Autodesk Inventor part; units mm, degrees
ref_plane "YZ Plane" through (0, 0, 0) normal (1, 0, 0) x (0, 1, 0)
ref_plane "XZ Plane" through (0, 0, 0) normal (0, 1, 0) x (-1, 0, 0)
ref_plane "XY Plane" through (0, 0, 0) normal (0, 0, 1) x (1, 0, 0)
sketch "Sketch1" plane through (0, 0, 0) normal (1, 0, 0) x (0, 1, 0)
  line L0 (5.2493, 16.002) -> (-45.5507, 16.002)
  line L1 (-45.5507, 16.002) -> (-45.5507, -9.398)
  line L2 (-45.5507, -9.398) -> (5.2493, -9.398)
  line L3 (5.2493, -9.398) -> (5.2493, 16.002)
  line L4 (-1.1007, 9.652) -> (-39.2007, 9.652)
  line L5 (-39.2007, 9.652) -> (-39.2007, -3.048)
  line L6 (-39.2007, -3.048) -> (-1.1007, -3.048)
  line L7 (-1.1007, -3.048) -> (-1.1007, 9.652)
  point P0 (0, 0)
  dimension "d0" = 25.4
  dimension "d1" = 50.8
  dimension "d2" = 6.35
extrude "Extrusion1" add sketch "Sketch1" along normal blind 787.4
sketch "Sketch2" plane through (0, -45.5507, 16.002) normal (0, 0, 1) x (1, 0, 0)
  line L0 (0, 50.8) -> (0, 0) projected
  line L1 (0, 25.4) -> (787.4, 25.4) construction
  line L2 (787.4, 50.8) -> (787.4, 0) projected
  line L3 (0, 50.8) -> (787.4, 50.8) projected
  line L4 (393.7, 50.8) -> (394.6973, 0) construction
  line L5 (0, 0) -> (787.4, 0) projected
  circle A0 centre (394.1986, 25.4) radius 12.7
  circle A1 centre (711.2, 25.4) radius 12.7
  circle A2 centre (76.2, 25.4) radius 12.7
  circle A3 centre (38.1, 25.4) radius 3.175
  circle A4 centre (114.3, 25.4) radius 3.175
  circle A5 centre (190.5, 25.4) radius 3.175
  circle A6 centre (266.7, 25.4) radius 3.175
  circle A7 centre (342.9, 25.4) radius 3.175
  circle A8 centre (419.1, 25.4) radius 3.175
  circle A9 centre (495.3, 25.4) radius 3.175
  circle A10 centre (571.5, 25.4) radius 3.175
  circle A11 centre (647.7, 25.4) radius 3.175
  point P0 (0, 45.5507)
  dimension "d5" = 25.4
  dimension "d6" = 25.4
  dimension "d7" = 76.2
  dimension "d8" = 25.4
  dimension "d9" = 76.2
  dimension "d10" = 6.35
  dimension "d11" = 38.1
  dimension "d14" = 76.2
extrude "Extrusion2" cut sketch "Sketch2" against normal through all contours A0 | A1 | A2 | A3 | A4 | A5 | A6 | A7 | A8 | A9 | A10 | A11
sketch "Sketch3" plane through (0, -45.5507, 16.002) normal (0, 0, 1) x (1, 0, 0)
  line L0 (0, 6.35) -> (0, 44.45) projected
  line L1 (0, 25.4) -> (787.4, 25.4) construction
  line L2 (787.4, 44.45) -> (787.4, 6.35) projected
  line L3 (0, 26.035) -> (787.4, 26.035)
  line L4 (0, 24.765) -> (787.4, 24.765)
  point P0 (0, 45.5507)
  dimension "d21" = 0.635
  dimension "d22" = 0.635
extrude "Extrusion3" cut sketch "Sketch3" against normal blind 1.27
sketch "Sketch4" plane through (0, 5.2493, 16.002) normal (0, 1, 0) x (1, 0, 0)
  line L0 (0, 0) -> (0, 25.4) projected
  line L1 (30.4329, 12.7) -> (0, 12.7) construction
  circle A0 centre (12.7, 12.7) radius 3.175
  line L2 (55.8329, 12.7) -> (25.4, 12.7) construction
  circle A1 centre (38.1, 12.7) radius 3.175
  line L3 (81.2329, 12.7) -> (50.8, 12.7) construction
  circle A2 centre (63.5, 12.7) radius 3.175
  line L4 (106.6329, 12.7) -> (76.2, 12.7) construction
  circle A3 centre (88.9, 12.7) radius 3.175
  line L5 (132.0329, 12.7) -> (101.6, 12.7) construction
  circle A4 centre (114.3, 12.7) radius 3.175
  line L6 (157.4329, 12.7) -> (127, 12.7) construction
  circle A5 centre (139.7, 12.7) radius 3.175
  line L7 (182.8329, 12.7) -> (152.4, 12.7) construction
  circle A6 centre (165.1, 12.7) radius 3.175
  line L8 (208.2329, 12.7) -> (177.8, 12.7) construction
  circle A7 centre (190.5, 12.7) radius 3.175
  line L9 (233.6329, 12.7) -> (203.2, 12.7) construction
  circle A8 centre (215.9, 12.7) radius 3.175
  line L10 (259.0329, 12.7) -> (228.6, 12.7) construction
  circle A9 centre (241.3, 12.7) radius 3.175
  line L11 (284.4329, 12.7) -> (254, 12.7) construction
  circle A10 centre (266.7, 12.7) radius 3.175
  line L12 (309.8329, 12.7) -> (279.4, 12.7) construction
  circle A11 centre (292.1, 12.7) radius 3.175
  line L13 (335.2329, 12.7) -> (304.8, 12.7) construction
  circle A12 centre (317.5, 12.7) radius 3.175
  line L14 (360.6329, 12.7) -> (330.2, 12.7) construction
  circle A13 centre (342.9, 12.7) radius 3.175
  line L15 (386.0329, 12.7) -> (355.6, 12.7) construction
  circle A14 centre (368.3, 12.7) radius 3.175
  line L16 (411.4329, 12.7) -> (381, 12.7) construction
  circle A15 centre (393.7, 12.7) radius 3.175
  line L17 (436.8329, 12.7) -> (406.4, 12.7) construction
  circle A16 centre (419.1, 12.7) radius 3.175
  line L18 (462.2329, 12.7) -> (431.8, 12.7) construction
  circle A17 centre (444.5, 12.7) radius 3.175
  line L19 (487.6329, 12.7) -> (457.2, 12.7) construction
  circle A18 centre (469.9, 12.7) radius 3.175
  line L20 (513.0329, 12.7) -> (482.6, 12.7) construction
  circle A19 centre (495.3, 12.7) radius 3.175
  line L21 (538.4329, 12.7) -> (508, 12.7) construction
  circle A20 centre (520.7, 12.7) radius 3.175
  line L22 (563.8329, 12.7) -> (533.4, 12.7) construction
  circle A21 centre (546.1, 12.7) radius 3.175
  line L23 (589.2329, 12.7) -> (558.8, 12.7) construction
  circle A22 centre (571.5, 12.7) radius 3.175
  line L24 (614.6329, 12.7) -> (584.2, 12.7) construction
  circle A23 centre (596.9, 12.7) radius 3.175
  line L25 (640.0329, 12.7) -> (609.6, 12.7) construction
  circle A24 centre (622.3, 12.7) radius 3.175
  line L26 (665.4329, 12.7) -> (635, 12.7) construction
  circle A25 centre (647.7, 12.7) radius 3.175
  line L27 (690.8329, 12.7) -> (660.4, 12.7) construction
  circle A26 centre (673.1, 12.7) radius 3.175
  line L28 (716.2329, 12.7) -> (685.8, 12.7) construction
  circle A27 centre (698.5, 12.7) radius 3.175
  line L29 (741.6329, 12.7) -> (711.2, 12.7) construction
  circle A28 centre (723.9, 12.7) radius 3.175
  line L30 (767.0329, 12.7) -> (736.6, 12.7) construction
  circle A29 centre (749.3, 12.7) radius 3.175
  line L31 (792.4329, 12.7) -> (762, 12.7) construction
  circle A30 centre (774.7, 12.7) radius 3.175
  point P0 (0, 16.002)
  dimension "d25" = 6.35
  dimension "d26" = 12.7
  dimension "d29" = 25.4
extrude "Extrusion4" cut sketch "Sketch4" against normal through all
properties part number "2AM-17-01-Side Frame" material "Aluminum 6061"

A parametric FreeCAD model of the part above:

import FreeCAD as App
import Part
import Sketcher
Q = App.Units.Quantity


def add_polygon(sketch, points):
    """Adds a closed chain of lines whose ends are joined by coincident constraints."""
    first, n = sketch.GeometryCount, len(points)
    for a, b in zip(points, points[1:] + points[:1]):
        sketch.addGeometry(Part.LineSegment(App.Vector(*a, 0), App.Vector(*b, 0)), False)
    for i in range(n):
        sketch.addConstraint(Sketcher.Constraint("Coincident", first + i, 2, first + (i + 1) % n, 1))

doc = App.newDocument("Part")
body = doc.addObject("PartDesign::Body", "Body")

sketch1 = doc.addObject("Sketcher::SketchObject", "Sketch")
body.addObject(sketch1)
sketch1.AttachmentSupport = (doc.YZ_Plane, [""])
sketch1.MapMode = "FlatFace"
add_polygon(sketch1, [(5, -9), (5, 16), (-46, 16), (-46, -9)])
add_polygon(sketch1, [(-39, 10), (-1, 10), (-1, -3), (-39, -3)])
sketch1.addConstraint(Sketcher.Constraint("Vertical", 0))
sketch1.addConstraint(Sketcher.Constraint("Horizontal", 1))
sketch1.addConstraint(Sketcher.Constraint("Vertical", 2))
sketch1.addConstraint(Sketcher.Constraint("Horizontal", 3))
sketch1.addConstraint(Sketcher.Constraint("Horizontal", 4))
sketch1.addConstraint(Sketcher.Constraint("Vertical", 5))
sketch1.addConstraint(Sketcher.Constraint("Horizontal", 6))
sketch1.addConstraint(Sketcher.Constraint("Vertical", 7))
sketch1.addConstraint(Sketcher.Constraint("DistanceX", 1, 2, 1, 1, Q("2 in")))
sketch1.addConstraint(Sketcher.Constraint("DistanceY", 0, 1, 0, 2, Q("1 in")))
sketch1.addConstraint(Sketcher.Constraint("DistanceX", 4, 2, 0, 2, Q("0.25 in")))
sketch1.addConstraint(Sketcher.Constraint("DistanceY", 4, 2, 0, 2, Q("0.25 in")))
sketch1.addConstraint(Sketcher.Constraint("DistanceY", 3, 2, 5, 2, Q("0.25 in")))
sketch1.addConstraint(Sketcher.Constraint("DistanceX", 2, 2, 6, 2, Q("0.25 in")))
sketch1.addConstraint(Sketcher.Constraint("DistanceY", -1, 1, 0, 2, Q("0.63 in")))
sketch1.addConstraint(Sketcher.Constraint("DistanceX", -1, 1, 0, 2, Q("5.2493 mm")))
pad1 = doc.addObject("PartDesign::Pad", "Pad")
body.addObject(pad1)
pad1.Profile = sketch1
pad1.Length = Q("31 in")

sketch2 = doc.addObject("Sketcher::SketchObject", "Sketch001")
body.addObject(sketch2)
sketch2.AttachmentSupport = (doc.XY_Plane, [""])
sketch2.MapMode = "FlatFace"
sketch2.AttachmentOffset = App.Placement(App.Vector(0, 0, 0.63 * 25.4), App.Rotation())
sketch2.addGeometry(Part.Circle(App.Vector(394.2, -20.2, 0), App.Vector(0, 0, 1), 12.7), False)
sketch2.addGeometry(Part.Circle(App.Vector(711.2, -20.2, 0), App.Vector(0, 0, 1), 12.7), False)
sketch2.addGeometry(Part.Circle(App.Vector(76.2, -20.2, 0), App.Vector(0, 0, 1), 12.7), False)
sketch2.addGeometry(Part.Circle(App.Vector(38.1, -20.2, 0), App.Vector(0, 0, 1), 3.2), False)
sketch2.addGeometry(Part.Circle(App.Vector(114.3, -20.2, 0), App.Vector(0, 0, 1), 3.2), False)
sketch2.addGeometry(Part.Circle(App.Vector(190.5, -20.2, 0), App.Vector(0, 0, 1), 3.2), False)
sketch2.addGeometry(Part.Circle(App.Vector(266.7, -20.2, 0), App.Vector(0, 0, 1), 3.2), False)
sketch2.addGeometry(Part.Circle(App.Vector(342.9, -20.2, 0), App.Vector(0, 0, 1), 3.2), False)
sketch2.addGeometry(Part.Circle(App.Vector(419.1, -20.2, 0), App.Vector(0, 0, 1), 3.2), False)
sketch2.addGeometry(Part.Circle(App.Vector(495.3, -20.2, 0), App.Vector(0, 0, 1), 3.2), False)
sketch2.addGeometry(Part.Circle(App.Vector(571.5, -20.2, 0), App.Vector(0, 0, 1), 3.2), False)
sketch2.addGeometry(Part.Circle(App.Vector(647.7, -20.2, 0), App.Vector(0, 0, 1), 3.2), False)
sketch2.addConstraint(Sketcher.Constraint("Equal", 0, 1))
sketch2.addConstraint(Sketcher.Constraint("Equal", 1, 2))
sketch2.addConstraint(Sketcher.Constraint("Equal", 3, 4))
sketch2.addConstraint(Sketcher.Constraint("Equal", 4, 5))
sketch2.addConstraint(Sketcher.Constraint("Equal", 5, 6))
sketch2.addConstraint(Sketcher.Constraint("Equal", 6, 7))
sketch2.addConstraint(Sketcher.Constraint("Equal", 7, 8))
sketch2.addConstraint(Sketcher.Constraint("Equal", 8, 9))
sketch2.addConstraint(Sketcher.Constraint("Equal", 9, 10))
sketch2.addConstraint(Sketcher.Constraint("Equal", 10, 11))
sketch2.addConstraint(Sketcher.Constraint("Horizontal", 0, 3, 1, 3))
sketch2.addConstraint(Sketcher.Constraint("Horizontal", 1, 3, 2, 3))
sketch2.addConstraint(Sketcher.Constraint("Horizontal", 2, 3, 3, 3))
sketch2.addConstraint(Sketcher.Constraint("Horizontal", 3, 3, 4, 3))
sketch2.addConstraint(Sketcher.Constraint("Horizontal", 4, 3, 5, 3))
sketch2.addConstraint(Sketcher.Constraint("Horizontal", 5, 3, 6, 3))
sketch2.addConstraint(Sketcher.Constraint("Horizontal", 6, 3, 7, 3))
sketch2.addConstraint(Sketcher.Constraint("Horizontal", 7, 3, 8, 3))
sketch2.addConstraint(Sketcher.Constraint("Horizontal", 8, 3, 9, 3))
sketch2.addConstraint(Sketcher.Constraint("Horizontal", 9, 3, 10, 3))
sketch2.addConstraint(Sketcher.Constraint("Horizontal", 10, 3, 11, 3))
sketch2.addConstraint(Sketcher.Constraint("Diameter", 0, Q("1 in")))
sketch2.addConstraint(Sketcher.Constraint("Diameter", 3, Q("0.25 in")))
sketch2.addConstraint(Sketcher.Constraint("DistanceX", -1, 1, 2, 3, Q("3 in")))
sketch2.addConstraint(Sketcher.Constraint("DistanceX", 3, 3, 4, 3, Q("3 in")))
sketch2.addConstraint(Sketcher.Constraint("DistanceX", 4, 3, 5, 3, Q("3 in")))
sketch2.addConstraint(Sketcher.Constraint("DistanceX", 5, 3, 6, 3, Q("3 in")))
sketch2.addConstraint(Sketcher.Constraint("DistanceX", 6, 3, 7, 3, Q("3 in")))
sketch2.addConstraint(Sketcher.Constraint("DistanceX", 7, 3, 8, 3, Q("3 in")))
sketch2.addConstraint(Sketcher.Constraint("DistanceX", 8, 3, 9, 3, Q("3 in")))
sketch2.addConstraint(Sketcher.Constraint("DistanceX", 9, 3, 10, 3, Q("3 in")))
sketch2.addConstraint(Sketcher.Constraint("DistanceX", 10, 3, 11, 3, Q("3 in")))
sketch2.addConstraint(Sketcher.Constraint("DistanceX", -1, 1, 3, 3, Q("1.5 in")))
sketch2.addConstraint(Sketcher.Constraint("DistanceX", -1, 1, 1, 3, Q("28 in")))
sketch2.addConstraint(Sketcher.Constraint("DistanceX", -1, 1, 0, 3, Q("394.1986 mm")))
sketch2.addConstraint(Sketcher.Constraint("DistanceY", 0, 3, -1, 1, Q("20.1507 mm")))
pocket1 = doc.addObject("PartDesign::Pocket", "Pocket")
body.addObject(pocket1)
pocket1.Profile = sketch2
pocket1.Type = "ThroughAll"

sketch3 = doc.addObject("Sketcher::SketchObject", "Sketch002")
body.addObject(sketch3)
sketch3.AttachmentSupport = (doc.XY_Plane, [""])
sketch3.MapMode = "FlatFace"
sketch3.AttachmentOffset = App.Placement(App.Vector(0, 0, 0.63 * 25.4), App.Rotation())
add_polygon(sketch3, [(0, -19.5), (0, -20.8), (787.4, -20.8), (787.4, -19.5)])
sketch3.addConstraint(Sketcher.Constraint("Vertical", 0))
sketch3.addConstraint(Sketcher.Constraint("Horizontal", 1))
sketch3.addConstraint(Sketcher.Constraint("Vertical", 2))
sketch3.addConstraint(Sketcher.Constraint("Horizontal", 3))
sketch3.addConstraint(Sketcher.Constraint("PointOnObject", 0, 2, -2))
sketch3.addConstraint(Sketcher.Constraint("DistanceX", 1, 1, 1, 2, Q("31 in")))
sketch3.addConstraint(Sketcher.Constraint("DistanceY", 0, 2, 0, 1, Q("0.05 in")))
sketch3.addConstraint(Sketcher.Constraint("DistanceY", 0, 2, -1, 1, Q("20.7857 mm")))
pocket2 = doc.addObject("PartDesign::Pocket", "Pocket001")
body.addObject(pocket2)
pocket2.Profile = sketch3
pocket2.Length = Q("0.05 in")

sketch4 = doc.addObject("Sketcher::SketchObject", "Sketch003")
body.addObject(sketch4)
sketch4.AttachmentSupport = (doc.XZ_Plane, [""])
sketch4.MapMode = "FlatFace"
sketch4.AttachmentOffset = App.Placement(App.Vector(0, 0, -5.2493), App.Rotation())
sketch4.addGeometry(Part.Circle(App.Vector(12.7, 3.3, 0), App.Vector(0, 0, 1), 3.2), False)
sketch4.addGeometry(Part.Circle(App.Vector(38.1, 3.3, 0), App.Vector(0, 0, 1), 3.2), False)
sketch4.addGeometry(Part.Circle(App.Vector(63.5, 3.3, 0), App.Vector(0, 0, 1), 3.2), False)
sketch4.addGeometry(Part.Circle(App.Vector(88.9, 3.3, 0), App.Vector(0, 0, 1), 3.2), False)
sketch4.addGeometry(Part.Circle(App.Vector(114.3, 3.3, 0), App.Vector(0, 0, 1), 3.2), False)
sketch4.addGeometry(Part.Circle(App.Vector(139.7, 3.3, 0), App.Vector(0, 0, 1), 3.2), False)
sketch4.addGeometry(Part.Circle(App.Vector(165.1, 3.3, 0), App.Vector(0, 0, 1), 3.2), False)
sketch4.addGeometry(Part.Circle(App.Vector(190.5, 3.3, 0), App.Vector(0, 0, 1), 3.2), False)
sketch4.addGeometry(Part.Circle(App.Vector(215.9, 3.3, 0), App.Vector(0, 0, 1), 3.2), False)
sketch4.addGeometry(Part.Circle(App.Vector(241.3, 3.3, 0), App.Vector(0, 0, 1), 3.2), False)
sketch4.addGeometry(Part.Circle(App.Vector(266.7, 3.3, 0), App.Vector(0, 0, 1), 3.2), False)
sketch4.addGeometry(Part.Circle(App.Vector(292.1, 3.3, 0), App.Vector(0, 0, 1), 3.2), False)
sketch4.addGeometry(Part.Circle(App.Vector(317.5, 3.3, 0), App.Vector(0, 0, 1), 3.2), False)
sketch4.addGeometry(Part.Circle(App.Vector(342.9, 3.3, 0), App.Vector(0, 0, 1), 3.2), False)
sketch4.addGeometry(Part.Circle(App.Vector(368.3, 3.3, 0), App.Vector(0, 0, 1), 3.2), False)
sketch4.addGeometry(Part.Circle(App.Vector(393.7, 3.3, 0), App.Vector(0, 0, 1), 3.2), False)
sketch4.addGeometry(Part.Circle(App.Vector(419.1, 3.3, 0), App.Vector(0, 0, 1), 3.2), False)
sketch4.addGeometry(Part.Circle(App.Vector(444.5, 3.3, 0), App.Vector(0, 0, 1), 3.2), False)
sketch4.addGeometry(Part.Circle(App.Vector(469.9, 3.3, 0), App.Vector(0, 0, 1), 3.2), False)
sketch4.addGeometry(Part.Circle(App.Vector(495.3, 3.3, 0), App.Vector(0, 0, 1), 3.2), False)
sketch4.addGeometry(Part.Circle(App.Vector(520.7, 3.3, 0), App.Vector(0, 0, 1), 3.2), False)
sketch4.addGeometry(Part.Circle(App.Vector(546.1, 3.3, 0), App.Vector(0, 0, 1), 3.2), False)
sketch4.addGeometry(Part.Circle(App.Vector(571.5, 3.3, 0), App.Vector(0, 0, 1), 3.2), False)
sketch4.addGeometry(Part.Circle(App.Vector(596.9, 3.3, 0), App.Vector(0, 0, 1), 3.2), False)
sketch4.addGeometry(Part.Circle(App.Vector(622.3, 3.3, 0), App.Vector(0, 0, 1), 3.2), False)
sketch4.addGeometry(Part.Circle(App.Vector(647.7, 3.3, 0), App.Vector(0, 0, 1), 3.2), False)
sketch4.addGeometry(Part.Circle(App.Vector(673.1, 3.3, 0), App.Vector(0, 0, 1), 3.2), False)
sketch4.addGeometry(Part.Circle(App.Vector(698.5, 3.3, 0), App.Vector(0, 0, 1), 3.2), False)
sketch4.addGeometry(Part.Circle(App.Vector(723.9, 3.3, 0), App.Vector(0, 0, 1), 3.2), False)
sketch4.addGeometry(Part.Circle(App.Vector(749.3, 3.3, 0), App.Vector(0, 0, 1), 3.2), False)
sketch4.addGeometry(Part.Circle(App.Vector(774.7, 3.3, 0), App.Vector(0, 0, 1), 3.2), False)
sketch4.addConstraint(Sketcher.Constraint("Equal", 0, 1))
sketch4.addConstraint(Sketcher.Constraint("Equal", 1, 2))
sketch4.addConstraint(Sketcher.Constraint("Equal", 2, 3))
sketch4.addConstraint(Sketcher.Constraint("Equal", 3, 4))
sketch4.addConstraint(Sketcher.Constraint("Equal", 4, 5))
sketch4.addConstraint(Sketcher.Constraint("Equal", 5, 6))
sketch4.addConstraint(Sketcher.Constraint("Equal", 6, 7))
sketch4.addConstraint(Sketcher.Constraint("Equal", 7, 8))
sketch4.addConstraint(Sketcher.Constraint("Equal", 8, 9))
sketch4.addConstraint(Sketcher.Constraint("Equal", 9, 10))
sketch4.addConstraint(Sketcher.Constraint("Equal", 10, 11))
sketch4.addConstraint(Sketcher.Constraint("Equal", 11, 12))
sketch4.addConstraint(Sketcher.Constraint("Equal", 12, 13))
sketch4.addConstraint(Sketcher.Constraint("Equal", 13, 14))
sketch4.addConstraint(Sketcher.Constraint("Equal", 14, 15))
sketch4.addConstraint(Sketcher.Constraint("Equal", 15, 16))
sketch4.addConstraint(Sketcher.Constraint("Equal", 16, 17))
sketch4.addConstraint(Sketcher.Constraint("Equal", 17, 18))
sketch4.addConstraint(Sketcher.Constraint("Equal", 18, 19))
sketch4.addConstraint(Sketcher.Constraint("Equal", 19, 20))
sketch4.addConstraint(Sketcher.Constraint("Equal", 20, 21))
sketch4.addConstraint(Sketcher.Constraint("Equal", 21, 22))
sketch4.addConstraint(Sketcher.Constraint("Equal", 22, 23))
sketch4.addConstraint(Sketcher.Constraint("Equal", 23, 24))
sketch4.addConstraint(Sketcher.Constraint("Equal", 24, 25))
sketch4.addConstraint(Sketcher.Constraint("Equal", 25, 26))
sketch4.addConstraint(Sketcher.Constraint("Equal", 26, 27))
sketch4.addConstraint(Sketcher.Constraint("Equal", 27, 28))
sketch4.addConstraint(Sketcher.Constraint("Equal", 28, 29))
sketch4.addConstraint(Sketcher.Constraint("Equal", 29, 30))
sketch4.addConstraint(Sketcher.Constraint("Horizontal", 0, 3, 1, 3))
sketch4.addConstraint(Sketcher.Constraint("Horizontal", 1, 3, 2, 3))
sketch4.addConstraint(Sketcher.Constraint("Horizontal", 2, 3, 3, 3))
sketch4.addConstraint(Sketcher.Constraint("Horizontal", 3, 3, 4, 3))
sketch4.addConstraint(Sketcher.Constraint("Horizontal", 4, 3, 5, 3))
sketch4.addConstraint(Sketcher.Constraint("Horizontal", 5, 3, 6, 3))
sketch4.addConstraint(Sketcher.Constraint("Horizontal", 6, 3, 7, 3))
sketch4.addConstraint(Sketcher.Constraint("Horizontal", 7, 3, 8, 3))
sketch4.addConstraint(Sketcher.Constraint("Horizontal", 8, 3, 9, 3))
sketch4.addConstraint(Sketcher.Constraint("Horizontal", 9, 3, 10, 3))
sketch4.addConstraint(Sketcher.Constraint("Horizontal", 10, 3, 11, 3))
sketch4.addConstraint(Sketcher.Constraint("Horizontal", 11, 3, 12, 3))
sketch4.addConstraint(Sketcher.Constraint("Horizontal", 12, 3, 13, 3))
sketch4.addConstraint(Sketcher.Constraint("Horizontal", 13, 3, 14, 3))
sketch4.addConstraint(Sketcher.Constraint("Horizontal", 14, 3, 15, 3))
sketch4.addConstraint(Sketcher.Constraint("Horizontal", 15, 3, 16, 3))
sketch4.addConstraint(Sketcher.Constraint("Horizontal", 16, 3, 17, 3))
sketch4.addConstraint(Sketcher.Constraint("Horizontal", 17, 3, 18, 3))
sketch4.addConstraint(Sketcher.Constraint("Horizontal", 18, 3, 19, 3))
sketch4.addConstraint(Sketcher.Constraint("Horizontal", 19, 3, 20, 3))
sketch4.addConstraint(Sketcher.Constraint("Horizontal", 20, 3, 21, 3))
sketch4.addConstraint(Sketcher.Constraint("Horizontal", 21, 3, 22, 3))
sketch4.addConstraint(Sketcher.Constraint("Horizontal", 22, 3, 23, 3))
sketch4.addConstraint(Sketcher.Constraint("Horizontal", 23, 3, 24, 3))
sketch4.addConstraint(Sketcher.Constraint("Horizontal", 24, 3, 25, 3))
sketch4.addConstraint(Sketcher.Constraint("Horizontal", 25, 3, 26, 3))
sketch4.addConstraint(Sketcher.Constraint("Horizontal", 26, 3, 27, 3))
sketch4.addConstraint(Sketcher.Constraint("Horizontal", 27, 3, 28, 3))
sketch4.addConstraint(Sketcher.Constraint("Horizontal", 28, 3, 29, 3))
sketch4.addConstraint(Sketcher.Constraint("Horizontal", 29, 3, 30, 3))
sketch4.addConstraint(Sketcher.Constraint("Diameter", 0, Q("0.25 in")))
sketch4.addConstraint(Sketcher.Constraint("DistanceX", 0, 3, 1, 3, Q("1 in")))
sketch4.addConstraint(Sketcher.Constraint("DistanceX", 1, 3, 2, 3, Q("1 in")))
sketch4.addConstraint(Sketcher.Constraint("DistanceX", 2, 3, 3, 3, Q("1 in")))
sketch4.addConstraint(Sketcher.Constraint("DistanceX", 3, 3, 4, 3, Q("1 in")))
sketch4.addConstraint(Sketcher.Constraint("DistanceX", 4, 3, 5, 3, Q("1 in")))
sketch4.addConstraint(Sketcher.Constraint("DistanceX", 5, 3, 6, 3, Q("1 in")))
sketch4.addConstraint(Sketcher.Constraint("DistanceX", 6, 3, 7, 3, Q("1 in")))
sketch4.addConstraint(Sketcher.Constraint("DistanceX", 7, 3, 8, 3, Q("1 in")))
sketch4.addConstraint(Sketcher.Constraint("DistanceX", 8, 3, 9, 3, Q("1 in")))
sketch4.addConstraint(Sketcher.Constraint("DistanceX", 9, 3, 10, 3, Q("1 in")))
sketch4.addConstraint(Sketcher.Constraint("DistanceX", 10, 3, 11, 3, Q("1 in")))
sketch4.addConstraint(Sketcher.Constraint("DistanceX", 11, 3, 12, 3, Q("1 in")))
sketch4.addConstraint(Sketcher.Constraint("DistanceX", 12, 3, 13, 3, Q("1 in")))
sketch4.addConstraint(Sketcher.Constraint("DistanceX", 13, 3, 14, 3, Q("1 in")))
sketch4.addConstraint(Sketcher.Constraint("DistanceX", 14, 3, 15, 3, Q("1 in")))
sketch4.addConstraint(Sketcher.Constraint("DistanceX", 15, 3, 16, 3, Q("1 in")))
sketch4.addConstraint(Sketcher.Constraint("DistanceX", 16, 3, 17, 3, Q("1 in")))
sketch4.addConstraint(Sketcher.Constraint("DistanceX", 17, 3, 18, 3, Q("1 in")))
sketch4.addConstraint(Sketcher.Constraint("DistanceX", 18, 3, 19, 3, Q("1 in")))
sketch4.addConstraint(Sketcher.Constraint("DistanceX", 19, 3, 20, 3, Q("1 in")))
sketch4.addConstraint(Sketcher.Constraint("DistanceX", 20, 3, 21, 3, Q("1 in")))
sketch4.addConstraint(Sketcher.Constraint("DistanceX", 21, 3, 22, 3, Q("1 in")))
sketch4.addConstraint(Sketcher.Constraint("DistanceX", 22, 3, 23, 3, Q("1 in")))
sketch4.addConstraint(Sketcher.Constraint("DistanceX", 23, 3, 24, 3, Q("1 in")))
sketch4.addConstraint(Sketcher.Constraint("DistanceX", 24, 3, 25, 3, Q("1 in")))
sketch4.addConstraint(Sketcher.Constraint("DistanceX", 25, 3, 26, 3, Q("1 in")))
sketch4.addConstraint(Sketcher.Constraint("DistanceX", 26, 3, 27, 3, Q("1 in")))
sketch4.addConstraint(Sketcher.Constraint("DistanceX", 27, 3, 28, 3, Q("1 in")))
sketch4.addConstraint(Sketcher.Constraint("DistanceX", 28, 3, 29, 3, Q("1 in")))
sketch4.addConstraint(Sketcher.Constraint("DistanceX", 29, 3, 30, 3, Q("1 in")))
sketch4.addConstraint(Sketcher.Constraint("DistanceX", -1, 1, 0, 3, Q("0.5 in")))
sketch4.addConstraint(Sketcher.Constraint("DistanceY", -1, 1, 0, 3, Q("0.13 in")))
pocket3 = doc.addObject("PartDesign::Pocket", "Pocket002")
body.addObject(pocket3)
pocket3.Profile = sketch4
pocket3.Type = "ThroughAll"
pocket3.Reversed = True

doc.recompute()
